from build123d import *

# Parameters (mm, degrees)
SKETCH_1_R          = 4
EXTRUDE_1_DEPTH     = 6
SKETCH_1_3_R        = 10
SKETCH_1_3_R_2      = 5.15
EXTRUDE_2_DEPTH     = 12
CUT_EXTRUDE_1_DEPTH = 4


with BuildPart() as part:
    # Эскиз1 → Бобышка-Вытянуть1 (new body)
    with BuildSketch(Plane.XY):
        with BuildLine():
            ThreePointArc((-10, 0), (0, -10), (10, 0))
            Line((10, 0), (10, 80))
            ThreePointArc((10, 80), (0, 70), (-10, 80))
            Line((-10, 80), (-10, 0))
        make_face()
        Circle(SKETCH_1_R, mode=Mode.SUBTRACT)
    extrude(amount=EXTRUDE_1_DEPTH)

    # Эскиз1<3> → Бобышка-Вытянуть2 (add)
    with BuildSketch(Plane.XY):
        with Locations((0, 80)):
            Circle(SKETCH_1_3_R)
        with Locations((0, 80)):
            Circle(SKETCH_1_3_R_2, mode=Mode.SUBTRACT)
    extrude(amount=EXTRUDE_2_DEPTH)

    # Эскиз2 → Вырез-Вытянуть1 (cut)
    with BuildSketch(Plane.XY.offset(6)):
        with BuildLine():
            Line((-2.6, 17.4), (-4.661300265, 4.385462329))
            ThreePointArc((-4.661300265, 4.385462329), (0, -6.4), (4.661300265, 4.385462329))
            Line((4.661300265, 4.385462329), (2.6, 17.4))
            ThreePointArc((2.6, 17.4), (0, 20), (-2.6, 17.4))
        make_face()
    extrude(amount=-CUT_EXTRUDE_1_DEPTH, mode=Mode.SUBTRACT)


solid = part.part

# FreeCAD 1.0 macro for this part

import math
import FreeCAD as App
import Part
import Sketcher
from FreeCAD import Vector
Q = App.Units.Quantity

doc = App.newDocument("Part")
body = doc.addObject("PartDesign::Body", "Body")

# Sketch on XY plane
sketch1 = doc.addObject("Sketcher::SketchObject", "Sketch")
body.addObject(sketch1)
sketch1.AttachmentSupport = (doc.XY_Plane, [""])
sketch1.MapMode = "FlatFace"
sketch1.addGeometry(Part.ArcOfCircle(Part.Circle(Vector(0, 0, 0), Vector(0, 0, 1), 10), math.radians(180), math.radians(360)), False)
sketch1.addGeometry(Part.LineSegment(Vector(10, 0, 0), Vector(10, 80, 0)), False)
sketch1.addGeometry(Part.ArcOfCircle(Part.Circle(Vector(0, 80, 0), Vector(0, 0, 1), 10), math.radians(180), math.radians(360)), False)
sketch1.addGeometry(Part.LineSegment(Vector(-10, 80, 0), Vector(-10, 0, 0)), False)
sketch1.addGeometry(Part.Circle(Vector(0, 0, 0), Vector(0, 0, 1), 4), False)
sketch1.addConstraint(Sketcher.Constraint("Tangent", 0, 2, 1, 1))
sketch1.addConstraint(Sketcher.Constraint("Tangent", 1, 2, 2, 2))
sketch1.addConstraint(Sketcher.Constraint("Tangent", 2, 1, 3, 1))
sketch1.addConstraint(Sketcher.Constraint("Tangent", 3, 2, 0, 1))
sketch1.addConstraint(Sketcher.Constraint("Vertical", 1))
sketch1.addConstraint(Sketcher.Constraint("Vertical", 3))
sketch1.addConstraint(Sketcher.Constraint("Coincident", 0, 3, -1, 1))
sketch1.addConstraint(Sketcher.Constraint("Coincident", 4, 3, -1, 1))
sketch1.addConstraint(Sketcher.Constraint("Diameter", 4, Q("8 mm")))
sketch1.addConstraint(Sketcher.Constraint("Radius", 0, Q("10 mm")))
sketch1.addConstraint(Sketcher.Constraint("DistanceY", 1, 1, 1, 2, Q("80 mm")))
pad1 = doc.addObject("PartDesign::Pad", "Pad")
body.addObject(pad1)
pad1.Profile = sketch1
pad1.Length = 6

# Sketch on XY plane
sketch2 = doc.addObject("Sketcher::SketchObject", "Sketch001")
body.addObject(sketch2)
sketch2.AttachmentSupport = (doc.XY_Plane, [""])
sketch2.MapMode = "FlatFace"
sketch2.addGeometry(Part.Circle(Vector(0, 80, 0), Vector(0, 0, 1), 10), False)
sketch2.addGeometry(Part.Circle(Vector(0, 80, 0), Vector(0, 0, 1), 5), False)
sketch2.addConstraint(Sketcher.Constraint("Coincident", 1, 3, 0, 3))
sketch2.addConstraint(Sketcher.Constraint("PointOnObject", 0, 3, -2))
sketch2.addConstraint(Sketcher.Constraint("Diameter", 0, Q("20 mm")))
sketch2.addConstraint(Sketcher.Constraint("Diameter", 1, Q("10.3 mm")))
sketch2.addConstraint(Sketcher.Constraint("DistanceY", -1, 1, 0, 3, Q("80 mm")))
pad2 = doc.addObject("PartDesign::Pad", "Pad001")
body.addObject(pad2)
pad2.Profile = sketch2
pad2.Length = 12

# Sketch on XY plane
sketch3 = doc.addObject("Sketcher::SketchObject", "Sketch002")
body.addObject(sketch3)
sketch3.AttachmentSupport = (doc.XY_Plane, [""])
sketch3.MapMode = "FlatFace"
sketch3.AttachmentOffset = App.Placement(Vector(0, 0, 6), App.Rotation())
sketch3.addGeometry(Part.LineSegment(Vector(-2.6, 17.4, 0), Vector(-4.7, 4.4, 0)), False)
sketch3.addGeometry(Part.ArcOfCircle(Part.Circle(Vector(0, 0, 0), Vector(0, 0, 1), 6.4), math.radians(137), math.radians(403)), False)
sketch3.addGeometry(Part.LineSegment(Vector(4.7, 4.4, 0), Vector(2.6, 17.4, 0)), False)
sketch3.addGeometry(Part.ArcOfCircle(Part.Circle(Vector(0, 17.4, 0), Vector(0, 0, 1), 2.6), math.radians(0), math.radians(180)), False)
sketch3.addConstraint(Sketcher.Constraint("Coincident", 0, 2, 1, 1))
sketch3.addConstraint(Sketcher.Constraint("Coincident", 1, 2, 2, 1))
sketch3.addConstraint(Sketcher.Constraint("Coincident", 2, 2, 3, 1))
sketch3.addConstraint(Sketcher.Constraint("Coincident", 3, 2, 0, 1))
sketch3.addConstraint(Sketcher.Constraint("Coincident", 1, 3, -1, 1))
sketch3.addConstraint(Sketcher.Constraint("Symmetric", 2, 2, 3, 2, -2))
sketch3.addConstraint(Sketcher.Constraint("Horizontal", 0, 2, 1, 2))
sketch3.addConstraint(Sketcher.Constraint("Horizontal", 3, 3, 2, 2))
sketch3.addConstraint(Sketcher.Constraint("Radius", 1, Q("6.4 mm")))
sketch3.addConstraint(Sketcher.Constraint("Radius", 3, Q("2.6 mm")))
sketch3.addConstraint(Sketcher.Constraint("Angle", 0, Q("-99 deg")))
sketch3.addConstraint(Sketcher.Constraint("DistanceY", -1, 1, 3, 3, Q("17.4 mm")))
pocket1 = doc.addObject("PartDesign::Pocket", "Pocket")
body.addObject(pocket1)
pocket1.Profile = sketch3
pocket1.Length = 4

doc.recompute()
